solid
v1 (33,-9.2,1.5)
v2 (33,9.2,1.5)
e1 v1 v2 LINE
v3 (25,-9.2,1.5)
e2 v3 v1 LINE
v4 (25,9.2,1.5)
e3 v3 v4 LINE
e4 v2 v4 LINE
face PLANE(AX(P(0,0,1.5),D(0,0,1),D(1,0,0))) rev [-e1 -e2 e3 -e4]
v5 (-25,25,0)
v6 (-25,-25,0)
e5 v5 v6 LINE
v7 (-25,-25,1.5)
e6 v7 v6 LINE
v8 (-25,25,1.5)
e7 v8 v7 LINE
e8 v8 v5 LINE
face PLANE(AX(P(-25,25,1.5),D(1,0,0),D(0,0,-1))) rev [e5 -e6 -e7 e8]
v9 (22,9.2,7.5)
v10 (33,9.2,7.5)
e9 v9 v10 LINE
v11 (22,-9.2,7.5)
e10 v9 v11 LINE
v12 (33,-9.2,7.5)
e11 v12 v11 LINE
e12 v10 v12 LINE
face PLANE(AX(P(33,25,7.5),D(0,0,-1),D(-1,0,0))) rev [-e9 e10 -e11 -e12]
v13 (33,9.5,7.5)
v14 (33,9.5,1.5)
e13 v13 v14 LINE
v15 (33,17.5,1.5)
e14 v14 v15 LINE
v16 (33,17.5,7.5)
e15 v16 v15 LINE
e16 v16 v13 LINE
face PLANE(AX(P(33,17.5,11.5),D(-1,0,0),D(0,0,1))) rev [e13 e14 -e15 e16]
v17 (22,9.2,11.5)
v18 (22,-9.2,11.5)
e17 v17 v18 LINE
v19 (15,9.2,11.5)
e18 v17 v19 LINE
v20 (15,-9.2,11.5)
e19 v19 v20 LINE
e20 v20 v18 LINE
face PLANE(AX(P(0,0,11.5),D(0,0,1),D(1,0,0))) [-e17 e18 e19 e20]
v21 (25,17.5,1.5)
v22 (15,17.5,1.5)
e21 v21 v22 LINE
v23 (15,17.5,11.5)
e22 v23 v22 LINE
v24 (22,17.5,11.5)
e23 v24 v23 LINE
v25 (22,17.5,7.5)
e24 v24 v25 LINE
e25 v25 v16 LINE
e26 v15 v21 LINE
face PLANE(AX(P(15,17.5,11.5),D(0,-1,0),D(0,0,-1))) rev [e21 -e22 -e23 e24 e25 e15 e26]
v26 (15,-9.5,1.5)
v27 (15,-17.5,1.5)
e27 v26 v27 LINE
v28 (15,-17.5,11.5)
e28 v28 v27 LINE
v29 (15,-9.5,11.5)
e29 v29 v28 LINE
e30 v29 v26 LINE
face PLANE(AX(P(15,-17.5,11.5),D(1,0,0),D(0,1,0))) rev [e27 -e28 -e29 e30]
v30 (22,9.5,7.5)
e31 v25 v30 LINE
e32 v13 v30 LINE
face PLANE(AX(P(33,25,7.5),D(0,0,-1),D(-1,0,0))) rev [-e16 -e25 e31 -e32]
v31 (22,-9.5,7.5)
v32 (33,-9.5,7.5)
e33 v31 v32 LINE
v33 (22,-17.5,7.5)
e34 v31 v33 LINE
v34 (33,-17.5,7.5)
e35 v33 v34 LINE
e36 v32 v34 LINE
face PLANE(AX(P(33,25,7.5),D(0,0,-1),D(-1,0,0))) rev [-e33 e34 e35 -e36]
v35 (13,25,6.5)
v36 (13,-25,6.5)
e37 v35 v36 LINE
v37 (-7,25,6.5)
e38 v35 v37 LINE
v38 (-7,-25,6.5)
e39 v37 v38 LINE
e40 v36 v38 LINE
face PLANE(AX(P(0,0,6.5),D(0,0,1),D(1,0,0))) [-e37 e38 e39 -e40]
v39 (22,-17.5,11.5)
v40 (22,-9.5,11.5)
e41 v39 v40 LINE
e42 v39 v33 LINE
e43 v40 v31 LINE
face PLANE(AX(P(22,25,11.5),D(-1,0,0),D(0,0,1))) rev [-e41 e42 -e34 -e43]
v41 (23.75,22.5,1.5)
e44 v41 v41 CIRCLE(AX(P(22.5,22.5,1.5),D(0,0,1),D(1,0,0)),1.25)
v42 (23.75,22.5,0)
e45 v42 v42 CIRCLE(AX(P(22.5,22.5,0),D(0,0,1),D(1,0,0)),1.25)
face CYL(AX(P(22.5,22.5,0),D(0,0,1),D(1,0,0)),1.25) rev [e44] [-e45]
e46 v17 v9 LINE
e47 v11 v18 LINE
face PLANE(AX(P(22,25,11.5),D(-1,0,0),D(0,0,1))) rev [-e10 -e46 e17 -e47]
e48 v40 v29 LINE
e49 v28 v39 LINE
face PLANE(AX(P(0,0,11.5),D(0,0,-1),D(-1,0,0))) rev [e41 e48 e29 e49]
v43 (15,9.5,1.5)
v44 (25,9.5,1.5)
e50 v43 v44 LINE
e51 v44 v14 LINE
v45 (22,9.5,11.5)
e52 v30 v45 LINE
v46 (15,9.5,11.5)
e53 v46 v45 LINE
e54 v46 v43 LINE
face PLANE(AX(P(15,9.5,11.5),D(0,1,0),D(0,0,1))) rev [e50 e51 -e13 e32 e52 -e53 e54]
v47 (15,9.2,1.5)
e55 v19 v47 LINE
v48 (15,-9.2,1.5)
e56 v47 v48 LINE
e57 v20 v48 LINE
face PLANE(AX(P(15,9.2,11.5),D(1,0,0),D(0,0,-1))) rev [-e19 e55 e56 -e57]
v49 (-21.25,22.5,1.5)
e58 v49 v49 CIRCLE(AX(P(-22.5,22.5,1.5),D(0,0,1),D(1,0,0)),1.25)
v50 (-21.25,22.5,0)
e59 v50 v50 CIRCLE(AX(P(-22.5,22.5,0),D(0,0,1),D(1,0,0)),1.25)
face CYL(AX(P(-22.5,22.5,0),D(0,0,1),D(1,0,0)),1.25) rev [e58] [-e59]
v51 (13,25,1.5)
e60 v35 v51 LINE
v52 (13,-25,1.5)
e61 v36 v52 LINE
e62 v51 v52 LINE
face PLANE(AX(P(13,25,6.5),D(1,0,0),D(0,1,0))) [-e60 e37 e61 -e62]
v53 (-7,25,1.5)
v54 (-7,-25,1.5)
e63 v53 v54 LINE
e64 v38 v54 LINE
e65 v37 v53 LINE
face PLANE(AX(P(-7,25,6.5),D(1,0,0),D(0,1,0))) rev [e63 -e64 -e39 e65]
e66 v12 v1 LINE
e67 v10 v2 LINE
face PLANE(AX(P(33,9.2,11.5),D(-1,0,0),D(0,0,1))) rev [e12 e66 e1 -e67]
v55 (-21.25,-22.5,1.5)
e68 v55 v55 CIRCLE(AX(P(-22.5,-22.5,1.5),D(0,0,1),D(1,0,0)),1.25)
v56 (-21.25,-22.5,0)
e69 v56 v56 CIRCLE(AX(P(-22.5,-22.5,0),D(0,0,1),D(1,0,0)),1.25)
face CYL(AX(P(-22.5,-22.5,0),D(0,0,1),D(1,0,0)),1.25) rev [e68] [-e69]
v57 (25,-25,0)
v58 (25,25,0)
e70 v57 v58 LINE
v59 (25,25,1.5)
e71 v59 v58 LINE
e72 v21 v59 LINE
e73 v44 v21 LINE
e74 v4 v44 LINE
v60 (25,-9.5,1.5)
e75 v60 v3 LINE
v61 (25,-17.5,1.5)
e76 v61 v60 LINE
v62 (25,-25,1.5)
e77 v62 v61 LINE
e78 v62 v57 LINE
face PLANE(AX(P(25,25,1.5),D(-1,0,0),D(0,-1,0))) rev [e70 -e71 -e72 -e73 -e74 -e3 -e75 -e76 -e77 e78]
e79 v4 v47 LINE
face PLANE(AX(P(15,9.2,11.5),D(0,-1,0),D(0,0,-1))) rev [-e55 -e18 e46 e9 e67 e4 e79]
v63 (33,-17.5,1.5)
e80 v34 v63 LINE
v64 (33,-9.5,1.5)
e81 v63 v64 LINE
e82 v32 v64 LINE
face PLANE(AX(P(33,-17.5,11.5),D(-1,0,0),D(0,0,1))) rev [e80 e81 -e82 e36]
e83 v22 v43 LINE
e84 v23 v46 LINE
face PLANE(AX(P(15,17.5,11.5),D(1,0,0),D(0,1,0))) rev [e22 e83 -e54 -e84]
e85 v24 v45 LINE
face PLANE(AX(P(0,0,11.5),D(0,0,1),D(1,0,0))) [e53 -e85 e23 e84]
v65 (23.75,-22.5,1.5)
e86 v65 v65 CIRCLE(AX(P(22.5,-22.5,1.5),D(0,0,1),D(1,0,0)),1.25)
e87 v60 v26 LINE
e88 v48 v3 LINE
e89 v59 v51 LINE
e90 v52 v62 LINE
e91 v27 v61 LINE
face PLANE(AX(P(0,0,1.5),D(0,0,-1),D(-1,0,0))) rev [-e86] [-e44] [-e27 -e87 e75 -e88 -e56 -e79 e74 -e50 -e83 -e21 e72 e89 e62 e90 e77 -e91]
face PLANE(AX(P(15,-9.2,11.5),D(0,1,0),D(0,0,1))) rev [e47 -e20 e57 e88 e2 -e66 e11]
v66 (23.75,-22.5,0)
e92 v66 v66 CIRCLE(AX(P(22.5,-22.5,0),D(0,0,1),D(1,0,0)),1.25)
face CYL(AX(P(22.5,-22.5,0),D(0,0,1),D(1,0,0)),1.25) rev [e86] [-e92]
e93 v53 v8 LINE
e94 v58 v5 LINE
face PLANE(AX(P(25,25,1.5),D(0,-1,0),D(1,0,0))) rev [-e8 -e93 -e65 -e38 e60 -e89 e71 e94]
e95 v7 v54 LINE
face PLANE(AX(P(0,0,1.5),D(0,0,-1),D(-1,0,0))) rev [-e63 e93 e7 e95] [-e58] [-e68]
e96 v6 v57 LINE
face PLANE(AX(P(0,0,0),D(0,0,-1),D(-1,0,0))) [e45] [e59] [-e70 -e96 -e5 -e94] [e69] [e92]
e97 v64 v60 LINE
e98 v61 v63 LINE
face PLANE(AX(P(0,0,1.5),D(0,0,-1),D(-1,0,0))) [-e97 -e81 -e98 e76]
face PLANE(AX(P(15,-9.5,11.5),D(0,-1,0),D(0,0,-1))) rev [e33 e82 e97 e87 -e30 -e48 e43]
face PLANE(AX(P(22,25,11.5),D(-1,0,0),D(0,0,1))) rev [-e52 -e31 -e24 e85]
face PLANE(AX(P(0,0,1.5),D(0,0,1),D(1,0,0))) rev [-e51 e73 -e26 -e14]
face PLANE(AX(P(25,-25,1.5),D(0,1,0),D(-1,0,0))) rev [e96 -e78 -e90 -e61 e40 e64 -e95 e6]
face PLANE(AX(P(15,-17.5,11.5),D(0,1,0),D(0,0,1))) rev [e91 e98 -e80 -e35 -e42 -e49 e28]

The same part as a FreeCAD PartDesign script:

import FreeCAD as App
import Part
import Sketcher

V = App.Vector
Q = App.Units.Quantity

doc = App.newDocument("Part")
body = doc.addObject("PartDesign::Body", "Body")

sketch1 = body.newObject("Sketcher::SketchObject", "Sketch")
sketch1.AttachmentSupport = (doc.getObject("XY_Plane"), [""])
sketch1.MapMode = "FlatFace"
sketch1.addGeometry(Part.LineSegment(V(-25, 25, 0), V(-25, -25, 0)), False)
sketch1.addGeometry(Part.LineSegment(V(-25, -25, 0), V(25, -25, 0)), False)
sketch1.addGeometry(Part.LineSegment(V(25, -25, 0), V(25, 25, 0)), False)
sketch1.addGeometry(Part.LineSegment(V(25, 25, 0), V(-25, 25, 0)), False)
sketch1.addConstraint(Sketcher.Constraint("Coincident", 0, 2, 1, 1))
sketch1.addConstraint(Sketcher.Constraint("Coincident", 1, 2, 2, 1))
sketch1.addConstraint(Sketcher.Constraint("Coincident", 2, 2, 3, 1))
sketch1.addConstraint(Sketcher.Constraint("Coincident", 3, 2, 0, 1))
sketch1.addConstraint(Sketcher.Constraint("Vertical", 0))
sketch1.addConstraint(Sketcher.Constraint("Horizontal", 1))
sketch1.addConstraint(Sketcher.Constraint("Vertical", 2))
sketch1.addConstraint(Sketcher.Constraint("Horizontal", 3))
sketch1.addConstraint(Sketcher.Constraint("Symmetric", 0, 2, 2, 2, -1, 1))
sketch1.addConstraint(Sketcher.Constraint("Equal", 3, 0))
sketch1.addConstraint(Sketcher.Constraint("DistanceX", 1, 1, 1, 2, Q("50 mm")))
pad1 = body.newObject("PartDesign::Pad", "Pad")
pad1.Profile = sketch1
pad1.Length = 1.5

sketch2 = body.newObject("Sketcher::SketchObject", "Sketch001")
sketch2.AttachmentSupport = (doc.getObject("XY_Plane"), [""])
sketch2.MapMode = "FlatFace"
sketch2.AttachmentOffset = App.Placement(V(0, 0, 1.5), App.Rotation())
sketch2.addGeometry(Part.LineSegment(V(-7, 25, 0), V(-7, -25, 0)), False)
sketch2.addGeometry(Part.LineSegment(V(-7, -25, 0), V(13, -25, 0)), False)
sketch2.addGeometry(Part.LineSegment(V(13, -25, 0), V(13, 25, 0)), False)
sketch2.addGeometry(Part.LineSegment(V(13, 25, 0), V(-7, 25, 0)), False)
sketch2.addConstraint(Sketcher.Constraint("Coincident", 0, 2, 1, 1))
sketch2.addConstraint(Sketcher.Constraint("Coincident", 1, 2, 2, 1))
sketch2.addConstraint(Sketcher.Constraint("Coincident", 2, 2, 3, 1))
sketch2.addConstraint(Sketcher.Constraint("Coincident", 3, 2, 0, 1))
sketch2.addConstraint(Sketcher.Constraint("Vertical", 0))
sketch2.addConstraint(Sketcher.Constraint("Horizontal", 1))
sketch2.addConstraint(Sketcher.Constraint("Vertical", 2))
sketch2.addConstraint(Sketcher.Constraint("Horizontal", 3))
sketch2.addConstraint(Sketcher.Constraint("DistanceX", 1, 1, 1, 2, Q("20 mm")))
sketch2.addConstraint(Sketcher.Constraint("DistanceY", 0, 2, 0, 1, Q("50 mm")))
sketch2.addConstraint(Sketcher.Constraint("DistanceX", 0, 2, -1, 1, Q("7 mm")))
sketch2.addConstraint(Sketcher.Constraint("DistanceY", 0, 2, -1, 1, Q("25 mm")))
pad2 = body.newObject("PartDesign::Pad", "Pad001")
pad2.Profile = sketch2
pad2.Length = 5

sketch3 = body.newObject("Sketcher::SketchObject", "Sketch002")
sketch3.AttachmentSupport = (doc.getObject("XY_Plane"), [""])
sketch3.MapMode = "FlatFace"
sketch3.AttachmentOffset = App.Placement(V(0, 0, 1.5), App.Rotation())
sketch3.addGeometry(Part.LineSegment(V(15, 18, 0), V(15, 10, 0)), False)
sketch3.addGeometry(Part.LineSegment(V(15, 10, 0), V(33, 10, 0)), False)
sketch3.addGeometry(Part.LineSegment(V(33, 10, 0), V(33, 18, 0)), False)
sketch3.addGeometry(Part.LineSegment(V(33, 18, 0), V(15, 18, 0)), False)
sketch3.addGeometry(Part.LineSegment(V(15, 9, 0), V(15, -9, 0)), False)
sketch3.addGeometry(Part.LineSegment(V(15, -9, 0), V(33, -9, 0)), False)
sketch3.addGeometry(Part.LineSegment(V(33, -9, 0), V(33, 9, 0)), False)
sketch3.addGeometry(Part.LineSegment(V(33, 9, 0), V(15, 9, 0)), False)
sketch3.addGeometry(Part.LineSegment(V(15, -10, 0), V(15, -18, 0)), False)
sketch3.addGeometry(Part.LineSegment(V(15, -18, 0), V(33, -18, 0)), False)
sketch3.addGeometry(Part.LineSegment(V(33, -18, 0), V(33, -10, 0)), False)
sketch3.addGeometry(Part.LineSegment(V(33, -10, 0), V(15, -10, 0)), False)
sketch3.addConstraint(Sketcher.Constraint("Coincident", 0, 2, 1, 1))
sketch3.addConstraint(Sketcher.Constraint("Coincident", 1, 2, 2, 1))
sketch3.addConstraint(Sketcher.Constraint("Coincident", 2, 2, 3, 1))
sketch3.addConstraint(Sketcher.Constraint("Coincident", 3, 2, 0, 1))
sketch3.addConstraint(Sketcher.Constraint("Coincident", 4, 2, 5, 1))
sketch3.addConstraint(Sketcher.Constraint("Coincident", 5, 2, 6, 1))
sketch3.addConstraint(Sketcher.Constraint("Coincident", 6, 2, 7, 1))
sketch3.addConstraint(Sketcher.Constraint("Coincident", 7, 2, 4, 1))
sketch3.addConstraint(Sketcher.Constraint("Coincident", 8, 2, 9, 1))
sketch3.addConstraint(Sketcher.Constraint("Coincident", 9, 2, 10, 1))
sketch3.addConstraint(Sketcher.Constraint("Coincident", 10, 2, 11, 1))
sketch3.addConstraint(Sketcher.Constraint("Coincident", 11, 2, 8, 1))
sketch3.addConstraint(Sketcher.Constraint("Vertical", 0))
sketch3.addConstraint(Sketcher.Constraint("Horizontal", 1))
sketch3.addConstraint(Sketcher.Constraint("Vertical", 2))
sketch3.addConstraint(Sketcher.Constraint("Horizontal", 3))
sketch3.addConstraint(Sketcher.Constraint("Vertical", 4))
sketch3.addConstraint(Sketcher.Constraint("Horizontal", 5))
sketch3.addConstraint(Sketcher.Constraint("Vertical", 6))
sketch3.addConstraint(Sketcher.Constraint("Horizontal", 7))
sketch3.addConstraint(Sketcher.Constraint("Vertical", 8))
sketch3.addConstraint(Sketcher.Constraint("Horizontal", 9))
sketch3.addConstraint(Sketcher.Constraint("Vertical", 10))
sketch3.addConstraint(Sketcher.Constraint("Horizontal", 11))
sketch3.addConstraint(Sketcher.Constraint("Symmetric", 3, 2, 8, 2, -1))
sketch3.addConstraint(Sketcher.Constraint("Symmetric", 1, 2, 10, 2, -1))
sketch3.addConstraint(Sketcher.Constraint("Vertical", 3, 2, 4, 2))
sketch3.addConstraint(Sketcher.Constraint("Vertical", 2, 2, 5, 2))
sketch3.addConstraint(Sketcher.Constraint("DistanceX", 1, 1, 1, 2, Q("18 mm")))
sketch3.addConstraint(Sketcher.Constraint("DistanceY", 0, 2, 0, 1, Q("8 mm")))
sketch3.addConstraint(Sketcher.Constraint("DistanceY", 4, 2, 4, 1, Q("18.4 mm")))
sketch3.addConstraint(Sketcher.Constraint("DistanceX", -1, 1, 0, 2, Q("15 mm")))
sketch3.addConstraint(Sketcher.Constraint("DistanceY", 8, 2, 0, 2, Q("27 mm")))
sketch3.addConstraint(Sketcher.Constraint("DistanceY", 4, 2, -1, 1, Q("9.2 mm")))
pad3 = body.newObject("PartDesign::Pad", "Pad002")
pad3.Profile = sketch3
pad3.Length = 10

sketch4 = body.newObject("Sketcher::SketchObject", "Sketch003")
sketch4.AttachmentSupport = (doc.getObject("XZ_Plane"), [""])
sketch4.MapMode = "FlatFace"
sketch4.AttachmentOffset = App.Placement(V(0, 0, 17.5), App.Rotation())
sketch4.addGeometry(Part.LineSegment(V(22, 11.5, 0), V(22, 7.5, 0)), False)
sketch4.addGeometry(Part.LineSegment(V(22, 7.5, 0), V(33, 7.5, 0)), False)
sketch4.addGeometry(Part.LineSegment(V(33, 7.5, 0), V(33, 11.5, 0)), False)
sketch4.addGeometry(Part.LineSegment(V(33, 11.5, 0), V(22, 11.5, 0)), False)
sketch4.addConstraint(Sketcher.Constraint("Coincident", 0, 2, 1, 1))
sketch4.addConstraint(Sketcher.Constraint("Coincident", 1, 2, 2, 1))
sketch4.addConstraint(Sketcher.Constraint("Coincident", 2, 2, 3, 1))
sketch4.addConstraint(Sketcher.Constraint("Coincident", 3, 2, 0, 1))
sketch4.addConstraint(Sketcher.Constraint("Vertical", 0))
sketch4.addConstraint(Sketcher.Constraint("Horizontal", 1))
sketch4.addConstraint(Sketcher.Constraint("Vertical", 2))
sketch4.addConstraint(Sketcher.Constraint("Horizontal", 3))
sketch4.addConstraint(Sketcher.Constraint("DistanceX", 1, 1, 1, 2, Q("11 mm")))
sketch4.addConstraint(Sketcher.Constraint("DistanceY", 0, 2, 0, 1, Q("4 mm")))
sketch4.addConstraint(Sketcher.Constraint("DistanceX", -1, 1, 0, 2, Q("22 mm")))
sketch4.addConstraint(Sketcher.Constraint("DistanceY", -1, 1, 0, 2, Q("7.5 mm")))
pocket1 = body.newObject("PartDesign::Pocket", "Pocket")
pocket1.Profile = sketch4
pocket1.Type = "ThroughAll"

sketch5 = body.newObject("Sketcher::SketchObject", "Sketch004")
sketch5.AttachmentSupport = (doc.getObject("XY_Plane"), [""])
sketch5.MapMode = "FlatFace"
sketch5.AttachmentOffset = App.Placement(V(0, 0, 1.5), App.Rotation())
sketch5.addGeometry(Part.Circle(V(-22.5, 22.5, 0), V(0, 0, 1), 1.2), False)
sketch5.addGeometry(Part.Circle(V(22.5, 22.5, 0), V(0, 0, 1), 1.2), False)
sketch5.addGeometry(Part.Circle(V(22.5, -22.5, 0), V(0, 0, 1), 1.2), False)
sketch5.addGeometry(Part.Circle(V(-22.5, -22.5, 0), V(0, 0, 1), 1.2), False)
sketch5.addConstraint(Sketcher.Constraint("Equal", 0, 1))
sketch5.addConstraint(Sketcher.Constraint("Equal", 1, 2))
sketch5.addConstraint(Sketcher.Constraint("Equal", 2, 3))
sketch5.addConstraint(Sketcher.Constraint("Symmetric", 0, 3, 2, 3, -1, 1))
sketch5.addConstraint(Sketcher.Constraint("Symmetric", 1, 3, 3, 3, -1, 1))
sketch5.addConstraint(Sketcher.Constraint("Symmetric", 0, 3, 1, 3, -2))
sketch5.addConstraint(Sketcher.Constraint("Diameter", 0, Q("2.5 mm")))
sketch5.addConstraint(Sketcher.Constraint("DistanceX", 0, 3, 1, 3, Q("45 mm")))
sketch5.addConstraint(Sketcher.Constraint("DistanceY", 2, 3, 1, 3, Q("45 mm")))
pocket2 = body.newObject("PartDesign::Pocket", "Pocket001")
pocket2.Profile = sketch5
pocket2.Type = "ThroughAll"

doc.recompute()
